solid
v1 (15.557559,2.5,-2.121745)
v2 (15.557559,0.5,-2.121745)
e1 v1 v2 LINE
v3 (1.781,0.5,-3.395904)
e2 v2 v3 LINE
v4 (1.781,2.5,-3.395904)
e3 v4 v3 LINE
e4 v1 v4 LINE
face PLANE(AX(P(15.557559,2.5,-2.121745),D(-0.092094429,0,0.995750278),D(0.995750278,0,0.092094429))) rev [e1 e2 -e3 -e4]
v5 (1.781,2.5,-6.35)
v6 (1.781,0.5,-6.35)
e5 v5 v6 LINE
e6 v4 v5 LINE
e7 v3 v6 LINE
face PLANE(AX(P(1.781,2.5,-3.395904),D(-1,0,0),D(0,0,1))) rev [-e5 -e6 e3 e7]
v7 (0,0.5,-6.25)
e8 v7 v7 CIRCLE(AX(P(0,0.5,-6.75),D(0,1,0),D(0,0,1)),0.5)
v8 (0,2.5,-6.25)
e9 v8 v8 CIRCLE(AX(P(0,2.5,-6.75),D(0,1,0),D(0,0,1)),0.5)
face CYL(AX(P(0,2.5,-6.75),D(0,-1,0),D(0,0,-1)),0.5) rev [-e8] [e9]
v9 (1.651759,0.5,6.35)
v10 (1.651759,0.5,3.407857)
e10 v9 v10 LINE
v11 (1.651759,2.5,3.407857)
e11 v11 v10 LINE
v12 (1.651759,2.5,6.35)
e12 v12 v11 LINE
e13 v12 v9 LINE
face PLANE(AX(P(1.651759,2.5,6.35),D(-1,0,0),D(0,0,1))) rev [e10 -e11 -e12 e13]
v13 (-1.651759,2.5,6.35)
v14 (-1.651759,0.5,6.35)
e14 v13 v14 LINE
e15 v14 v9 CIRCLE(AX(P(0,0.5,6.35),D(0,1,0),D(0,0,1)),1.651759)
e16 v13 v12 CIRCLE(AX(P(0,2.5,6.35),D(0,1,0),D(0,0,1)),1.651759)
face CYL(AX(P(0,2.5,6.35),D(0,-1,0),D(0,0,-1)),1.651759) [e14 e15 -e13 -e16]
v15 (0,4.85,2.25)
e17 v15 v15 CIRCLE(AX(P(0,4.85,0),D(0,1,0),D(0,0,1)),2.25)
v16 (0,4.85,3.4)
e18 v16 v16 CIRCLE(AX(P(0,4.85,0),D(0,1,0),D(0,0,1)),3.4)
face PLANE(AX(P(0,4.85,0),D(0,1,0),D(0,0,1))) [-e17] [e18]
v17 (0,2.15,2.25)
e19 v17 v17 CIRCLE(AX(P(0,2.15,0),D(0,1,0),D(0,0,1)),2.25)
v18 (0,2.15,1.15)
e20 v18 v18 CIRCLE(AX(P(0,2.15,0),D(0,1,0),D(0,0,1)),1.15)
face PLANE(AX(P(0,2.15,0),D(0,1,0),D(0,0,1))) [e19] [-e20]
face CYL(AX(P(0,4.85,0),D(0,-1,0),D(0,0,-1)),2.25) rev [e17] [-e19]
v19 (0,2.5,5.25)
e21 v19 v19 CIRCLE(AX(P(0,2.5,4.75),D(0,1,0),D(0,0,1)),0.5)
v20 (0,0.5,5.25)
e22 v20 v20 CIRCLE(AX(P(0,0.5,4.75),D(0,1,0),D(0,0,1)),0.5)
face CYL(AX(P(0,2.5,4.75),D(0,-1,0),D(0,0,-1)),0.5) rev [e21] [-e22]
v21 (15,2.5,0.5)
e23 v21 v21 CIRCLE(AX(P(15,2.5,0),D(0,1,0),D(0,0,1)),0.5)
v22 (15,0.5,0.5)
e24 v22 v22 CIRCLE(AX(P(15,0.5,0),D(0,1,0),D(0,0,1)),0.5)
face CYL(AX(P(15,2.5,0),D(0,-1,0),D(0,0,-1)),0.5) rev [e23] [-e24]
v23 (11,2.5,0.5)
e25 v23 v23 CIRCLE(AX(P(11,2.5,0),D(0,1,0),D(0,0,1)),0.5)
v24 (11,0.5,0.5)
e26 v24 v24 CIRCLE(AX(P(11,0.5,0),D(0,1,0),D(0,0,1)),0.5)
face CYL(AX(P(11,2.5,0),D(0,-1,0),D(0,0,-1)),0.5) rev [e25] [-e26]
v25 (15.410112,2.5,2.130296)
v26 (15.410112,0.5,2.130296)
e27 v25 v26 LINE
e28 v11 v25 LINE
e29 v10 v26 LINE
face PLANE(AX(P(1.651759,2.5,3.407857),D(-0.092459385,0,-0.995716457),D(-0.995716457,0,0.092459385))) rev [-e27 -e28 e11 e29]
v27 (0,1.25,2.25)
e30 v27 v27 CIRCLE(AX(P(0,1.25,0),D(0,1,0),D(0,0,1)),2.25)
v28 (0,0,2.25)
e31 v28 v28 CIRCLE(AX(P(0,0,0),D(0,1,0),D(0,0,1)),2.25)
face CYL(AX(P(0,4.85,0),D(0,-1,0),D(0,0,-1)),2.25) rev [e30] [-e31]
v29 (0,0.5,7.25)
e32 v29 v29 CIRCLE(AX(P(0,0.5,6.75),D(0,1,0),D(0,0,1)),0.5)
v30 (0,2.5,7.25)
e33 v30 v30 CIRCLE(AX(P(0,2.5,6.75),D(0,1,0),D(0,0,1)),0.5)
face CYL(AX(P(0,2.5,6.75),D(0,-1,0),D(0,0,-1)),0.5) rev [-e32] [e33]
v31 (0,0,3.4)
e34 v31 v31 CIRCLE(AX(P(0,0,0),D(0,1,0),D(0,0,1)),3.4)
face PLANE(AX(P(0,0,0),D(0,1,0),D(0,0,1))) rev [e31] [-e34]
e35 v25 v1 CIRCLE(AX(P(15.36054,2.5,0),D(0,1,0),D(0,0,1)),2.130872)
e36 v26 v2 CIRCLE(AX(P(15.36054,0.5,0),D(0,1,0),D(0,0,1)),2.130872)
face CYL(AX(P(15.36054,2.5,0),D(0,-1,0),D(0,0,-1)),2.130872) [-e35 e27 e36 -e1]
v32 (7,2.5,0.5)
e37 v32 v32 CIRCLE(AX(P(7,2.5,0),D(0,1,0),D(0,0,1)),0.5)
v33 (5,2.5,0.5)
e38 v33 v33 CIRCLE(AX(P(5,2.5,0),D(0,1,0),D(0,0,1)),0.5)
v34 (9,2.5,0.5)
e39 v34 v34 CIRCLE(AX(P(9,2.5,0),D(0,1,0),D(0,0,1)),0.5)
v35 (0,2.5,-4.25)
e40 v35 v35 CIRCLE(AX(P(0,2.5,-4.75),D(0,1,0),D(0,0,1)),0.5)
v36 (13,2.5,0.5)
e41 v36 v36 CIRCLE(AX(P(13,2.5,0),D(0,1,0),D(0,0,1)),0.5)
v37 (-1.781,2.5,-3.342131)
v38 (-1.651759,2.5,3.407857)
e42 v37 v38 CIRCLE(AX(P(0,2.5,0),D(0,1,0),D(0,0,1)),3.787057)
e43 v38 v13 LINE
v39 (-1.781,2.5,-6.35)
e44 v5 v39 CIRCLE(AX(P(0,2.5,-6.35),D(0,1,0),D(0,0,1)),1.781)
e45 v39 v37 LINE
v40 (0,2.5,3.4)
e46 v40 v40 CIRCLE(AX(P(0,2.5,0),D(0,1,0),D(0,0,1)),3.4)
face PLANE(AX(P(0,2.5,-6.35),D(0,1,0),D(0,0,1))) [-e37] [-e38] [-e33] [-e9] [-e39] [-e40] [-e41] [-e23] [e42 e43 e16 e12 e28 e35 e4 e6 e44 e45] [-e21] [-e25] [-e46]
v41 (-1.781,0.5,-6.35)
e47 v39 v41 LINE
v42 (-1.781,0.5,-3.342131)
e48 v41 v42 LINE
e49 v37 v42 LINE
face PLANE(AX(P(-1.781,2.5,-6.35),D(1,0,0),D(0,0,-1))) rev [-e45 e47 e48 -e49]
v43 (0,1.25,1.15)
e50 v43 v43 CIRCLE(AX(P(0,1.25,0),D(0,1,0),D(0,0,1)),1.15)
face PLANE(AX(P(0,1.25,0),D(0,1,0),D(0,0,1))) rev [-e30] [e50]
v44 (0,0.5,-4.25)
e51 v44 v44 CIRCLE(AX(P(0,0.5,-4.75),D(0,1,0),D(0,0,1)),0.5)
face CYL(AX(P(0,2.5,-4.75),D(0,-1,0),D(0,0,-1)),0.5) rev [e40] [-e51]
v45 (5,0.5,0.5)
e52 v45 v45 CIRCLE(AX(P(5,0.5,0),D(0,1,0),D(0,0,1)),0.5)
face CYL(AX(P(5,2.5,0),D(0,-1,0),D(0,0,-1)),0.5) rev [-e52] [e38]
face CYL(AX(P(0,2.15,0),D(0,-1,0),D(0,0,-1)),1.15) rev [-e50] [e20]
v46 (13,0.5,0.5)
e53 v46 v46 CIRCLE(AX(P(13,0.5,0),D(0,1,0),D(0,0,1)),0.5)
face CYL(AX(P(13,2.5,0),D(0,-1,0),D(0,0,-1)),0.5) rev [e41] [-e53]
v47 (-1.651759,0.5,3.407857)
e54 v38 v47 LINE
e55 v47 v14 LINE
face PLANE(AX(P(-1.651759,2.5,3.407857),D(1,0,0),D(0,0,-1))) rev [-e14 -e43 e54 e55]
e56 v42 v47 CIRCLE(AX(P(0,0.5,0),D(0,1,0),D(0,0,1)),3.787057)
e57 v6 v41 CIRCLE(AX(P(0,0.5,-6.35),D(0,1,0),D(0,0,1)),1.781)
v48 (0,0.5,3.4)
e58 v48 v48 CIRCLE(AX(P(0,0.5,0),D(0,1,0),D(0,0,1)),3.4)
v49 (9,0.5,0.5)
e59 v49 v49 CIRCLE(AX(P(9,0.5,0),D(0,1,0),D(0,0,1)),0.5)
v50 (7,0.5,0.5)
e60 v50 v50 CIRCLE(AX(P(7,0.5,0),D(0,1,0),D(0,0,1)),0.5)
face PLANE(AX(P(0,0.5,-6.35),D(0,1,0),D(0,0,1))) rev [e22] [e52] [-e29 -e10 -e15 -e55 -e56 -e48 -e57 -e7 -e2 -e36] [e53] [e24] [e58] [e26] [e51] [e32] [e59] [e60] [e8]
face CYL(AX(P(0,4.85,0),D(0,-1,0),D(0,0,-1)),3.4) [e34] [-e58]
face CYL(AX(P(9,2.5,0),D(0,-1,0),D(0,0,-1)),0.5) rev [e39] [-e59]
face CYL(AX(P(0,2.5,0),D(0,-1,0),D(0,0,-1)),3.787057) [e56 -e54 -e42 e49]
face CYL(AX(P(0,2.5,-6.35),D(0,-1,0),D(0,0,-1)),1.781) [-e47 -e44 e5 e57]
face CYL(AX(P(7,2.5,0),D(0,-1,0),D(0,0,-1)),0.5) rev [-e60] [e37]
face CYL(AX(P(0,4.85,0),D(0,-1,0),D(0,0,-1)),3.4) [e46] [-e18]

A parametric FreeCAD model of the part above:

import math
import FreeCAD as App
import Part
import Sketcher
Q = App.Units.Quantity

doc = App.newDocument("Part")
body = doc.addObject("PartDesign::Body", "Body")

# Sketch on XZ plane
sketch1 = doc.addObject("Sketcher::SketchObject", "Sketch")
body.addObject(sketch1)
sketch1.AttachmentSupport = (doc.XZ_Plane, [""])
sketch1.MapMode = "FlatFace"
sketch1.addGeometry([
    Part.Circle(App.Vector(0, 0, 0), App.Vector(0, 0, 1), 3.4),
    Part.Circle(App.Vector(0, 0, 0), App.Vector(0, 0, 1), 2.2),
], False)
sketch1.addConstraint([
    Sketcher.Constraint("Coincident", 0, 3, -1, 1),
    Sketcher.Constraint("Coincident", 1, 3, -1, 1),
    Sketcher.Constraint("Diameter", 0, Q("6.8 mm")),
    Sketcher.Constraint("Diameter", 1, Q("4.5 mm")),
])
pad1 = doc.addObject("PartDesign::Pad", "Pad")
body.addObject(pad1)
pad1.Profile = sketch1
pad1.Length = 4.85
pad1.Reversed = True

# Sketch on XZ plane
sketch2 = doc.addObject("Sketcher::SketchObject", "Sketch001")
body.addObject(sketch2)
sketch2.AttachmentSupport = (doc.XZ_Plane, [""])
sketch2.MapMode = "FlatFace"
sketch2.AttachmentOffset = App.Placement(App.Vector(0, 0, -0.5), App.Rotation())
sketch2.addGeometry([
    Part.LineSegment(App.Vector(1.8, -3.4, 0), App.Vector(1.8, -6.3, 0)),  # 0
    Part.ArcOfCircle(Part.Circle(App.Vector(0, -6.3, 0), App.Vector(0, 0, 1), 1.8), math.radians(-180), math.radians(0)),  # 1
    Part.LineSegment(App.Vector(-1.8, -6.3, 0), App.Vector(-1.8, -3.3, 0)),  # 2
    Part.ArcOfCircle(Part.Circle(App.Vector(0, 0, 0), App.Vector(0, 0, 1), 3.8), math.radians(116), math.radians(242)),  # 3
    Part.LineSegment(App.Vector(-1.7, 3.4, 0), App.Vector(-1.7, 6.3, 0)),  # 4
    Part.ArcOfCircle(Part.Circle(App.Vector(0, 6.4, 0), App.Vector(0, 0, 1), 1.7), math.radians(0), math.radians(180)),  # 5
    Part.LineSegment(App.Vector(1.7, 6.3, 0), App.Vector(1.7, 3.4, 0)),  # 6
    Part.LineSegment(App.Vector(1.7, 3.4, 0), App.Vector(15.4, 2.1, 0)),  # 7
    Part.ArcOfCircle(Part.Circle(App.Vector(15.4, 0, 0), App.Vector(0, 0, 1), 2.1), math.radians(-85), math.radians(89)),  # 8
    Part.LineSegment(App.Vector(15.6, -2.1, 0), App.Vector(1.8, -3.4, 0)),  # 9
    Part.Circle(App.Vector(0, 6.8, 0), App.Vector(0, 0, 1), 0.5),  # 10
    Part.Circle(App.Vector(0, 4.8, 0), App.Vector(0, 0, 1), 0.5),  # 11
    Part.Circle(App.Vector(0, 0, 0), App.Vector(0, 0, 1), 2.2),  # 12
    Part.Circle(App.Vector(5, 0, 0), App.Vector(0, 0, 1), 0.5),  # 13
    Part.Circle(App.Vector(0, -4.8, 0), App.Vector(0, 0, 1), 0.5),  # 14
    Part.Circle(App.Vector(0, -6.8, 0), App.Vector(0, 0, 1), 0.5),  # 15
    Part.Circle(App.Vector(7, 0, 0), App.Vector(0, 0, 1), 0.5),  # 16
    Part.Circle(App.Vector(9, 0, 0), App.Vector(0, 0, 1), 0.5),  # 17
    Part.Circle(App.Vector(11, 0, 0), App.Vector(0, 0, 1), 0.5),  # 18
    Part.Circle(App.Vector(13, 0, 0), App.Vector(0, 0, 1), 0.5),  # 19
    Part.Circle(App.Vector(15, 0, 0), App.Vector(0, 0, 1), 0.5),  # 20
], False)
sketch2.addConstraint([
    Sketcher.Constraint("Tangent", 0, 2, 1, 2),
    Sketcher.Constraint("Tangent", 1, 1, 2, 1),
    Sketcher.Constraint("Coincident", 2, 2, 3, 2),
    Sketcher.Constraint("Coincident", 3, 1, 4, 1),
    Sketcher.Constraint("Tangent", 4, 2, 5, 2),
    Sketcher.Constraint("Tangent", 5, 1, 6, 1),
    Sketcher.Constraint("Coincident", 6, 2, 7, 1),
    Sketcher.Constraint("Coincident", 7, 2, 8, 2),
    Sketcher.Constraint("Coincident", 8, 1, 9, 1),
    Sketcher.Constraint("Coincident", 9, 2, 0, 1),
    Sketcher.Constraint("Vertical", 0),
    Sketcher.Constraint("Vertical", 2),
    Sketcher.Constraint("Vertical", 4),
    Sketcher.Constraint("Vertical", 6),
    Sketcher.Constraint("Coincident", 3, 3, -1, 1),
    Sketcher.Constraint("Coincident", 12, 3, -1, 1),
    Sketcher.Constraint("Equal", 10, 11),
    Sketcher.Constraint("Equal", 11, 13),
    Sketcher.Constraint("Equal", 13, 14),
    Sketcher.Constraint("Equal", 14, 15),
    Sketcher.Constraint("Equal", 15, 16),
    Sketcher.Constraint("Equal", 16, 17),
    Sketcher.Constraint("Equal", 17, 18),
    Sketcher.Constraint("Equal", 18, 19),
    Sketcher.Constraint("Equal", 19, 20),
    Sketcher.Constraint("Symmetric", 1, 3, 5, 3, -1, 1),
    Sketcher.Constraint("Symmetric", 11, 3, 14, 3, -1, 1),
    Sketcher.Constraint("Symmetric", 10, 3, 15, 3, -1, 1),
    Sketcher.Constraint("Symmetric", 3, 1, 6, 2, -2),
    Sketcher.Constraint("PointOnObject", 8, 3, -1),
    Sketcher.Constraint("PointOnObject", 10, 3, -2),
    Sketcher.Constraint("PointOnObject", 11, 3, -2),
    Sketcher.Constraint("PointOnObject", 13, 3, -1),
    Sketcher.Constraint("PointOnObject", 16, 3, -1),
    Sketcher.Constraint("PointOnObject", 17, 3, -1),
    Sketcher.Constraint("PointOnObject", 18, 3, -1),
    Sketcher.Constraint("PointOnObject", 19, 3, -1),
    Sketcher.Constraint("PointOnObject", 20, 3, -1),
    Sketcher.Constraint("Diameter", 10, Q("1 mm")),
    Sketcher.Constraint("Diameter", 12, Q("4.5 mm")),
    Sketcher.Constraint("DistanceX", -1, 1, 13, 3, Q("5 mm")),
    Sketcher.Constraint("DistanceX", -1, 1, 16, 3, Q("7 mm")),
    Sketcher.Constraint("DistanceX", -1, 1, 17, 3, Q("9 mm")),
    Sketcher.Constraint("DistanceX", -1, 1, 18, 3, Q("11 mm")),
    Sketcher.Constraint("DistanceX", -1, 1, 19, 3, Q("13 mm")),
    Sketcher.Constraint("DistanceX", -1, 1, 20, 3, Q("15 mm")),
    Sketcher.Constraint("Radius", 1, Q("1.781 mm")),
    Sketcher.Constraint("DistanceY", 11, 3, 10, 3, Q("2 mm")),
    Sketcher.Constraint("DistanceY", 1, 3, 5, 3, Q("12.7 mm")),
    Sketcher.Constraint("DistanceY", 5, 3, 10, 3, Q("0.4 mm")),
    Sketcher.Constraint("Radius", 5, Q("1.651759 mm")),
    Sketcher.Constraint("Radius", 3, Q("3.787057 mm")),
    Sketcher.Constraint("Radius", 8, Q("2.130872 mm")),
    Sketcher.Constraint("Distance", 7, Q("13.817541 mm")),
    Sketcher.Constraint("DistanceY", 0, 2, 0, 1, Q("2.954096 mm")),
    Sketcher.Constraint("DistanceX", -1, 1, 8, 3, Q("15.36054 mm")),
    Sketcher.Constraint("DistanceX", -1, 1, 8, 1, Q("15.557559 mm")),
])
pad2 = doc.addObject("PartDesign::Pad", "Pad001")
body.addObject(pad2)
pad2.Profile = sketch2
pad2.Length = 2
pad2.Reversed = True

# Sketch on XZ plane
sketch3 = doc.addObject("Sketcher::SketchObject", "Sketch002")
body.addObject(sketch3)
sketch3.AttachmentSupport = (doc.XZ_Plane, [""])
sketch3.MapMode = "FlatFace"
sketch3.AttachmentOffset = App.Placement(App.Vector(0, 0, -1.25), App.Rotation())
sketch3.addGeometry([
    Part.Circle(App.Vector(0, 0, 0), App.Vector(0, 0, 1), 2.2),
    Part.Circle(App.Vector(0, 0, 0), App.Vector(0, 0, 1), 1.1),
], False)
sketch3.addConstraint([
    Sketcher.Constraint("Coincident", 0, 3, -1, 1),
    Sketcher.Constraint("Coincident", 1, 3, -1, 1),
    Sketcher.Constraint("Diameter", 0, Q("4.5 mm")),
    Sketcher.Constraint("Diameter", 1, Q("2.3 mm")),
])
pad3 = doc.addObject("PartDesign::Pad", "Pad002")
body.addObject(pad3)
pad3.Profile = sketch3
pad3.Length = 0.9
pad3.Reversed = True

doc.recompute()
